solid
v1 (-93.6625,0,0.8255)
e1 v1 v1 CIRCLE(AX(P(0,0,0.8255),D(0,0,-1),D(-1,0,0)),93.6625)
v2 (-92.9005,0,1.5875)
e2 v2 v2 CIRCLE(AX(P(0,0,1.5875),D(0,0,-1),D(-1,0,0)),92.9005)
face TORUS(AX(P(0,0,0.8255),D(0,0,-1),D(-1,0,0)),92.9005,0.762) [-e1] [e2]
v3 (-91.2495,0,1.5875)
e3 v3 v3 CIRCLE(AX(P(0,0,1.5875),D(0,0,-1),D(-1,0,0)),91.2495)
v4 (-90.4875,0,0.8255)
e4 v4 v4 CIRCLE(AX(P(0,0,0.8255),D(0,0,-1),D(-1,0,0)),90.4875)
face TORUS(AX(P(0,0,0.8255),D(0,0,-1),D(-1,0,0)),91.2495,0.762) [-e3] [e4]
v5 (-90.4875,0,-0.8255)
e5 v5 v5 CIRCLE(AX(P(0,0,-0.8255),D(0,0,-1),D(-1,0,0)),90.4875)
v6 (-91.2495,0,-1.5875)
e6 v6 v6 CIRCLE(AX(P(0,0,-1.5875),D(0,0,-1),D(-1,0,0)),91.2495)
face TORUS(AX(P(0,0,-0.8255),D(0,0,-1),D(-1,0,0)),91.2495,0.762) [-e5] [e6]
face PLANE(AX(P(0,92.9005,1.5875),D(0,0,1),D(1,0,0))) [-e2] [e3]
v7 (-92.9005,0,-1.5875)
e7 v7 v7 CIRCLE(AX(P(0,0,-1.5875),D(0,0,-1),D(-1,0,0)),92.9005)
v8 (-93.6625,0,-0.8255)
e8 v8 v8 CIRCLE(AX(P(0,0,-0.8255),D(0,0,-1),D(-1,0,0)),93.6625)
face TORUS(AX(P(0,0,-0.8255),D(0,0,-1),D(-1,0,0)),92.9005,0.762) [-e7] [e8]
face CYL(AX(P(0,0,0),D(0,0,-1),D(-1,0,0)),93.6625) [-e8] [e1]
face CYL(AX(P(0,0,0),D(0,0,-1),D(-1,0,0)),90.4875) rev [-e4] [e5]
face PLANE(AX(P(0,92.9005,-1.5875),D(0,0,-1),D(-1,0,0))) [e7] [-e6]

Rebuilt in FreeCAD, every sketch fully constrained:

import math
import FreeCAD as App
import Part
import Sketcher

V = App.Vector
Q = App.Units.Quantity

doc = App.newDocument("Part")
body = doc.addObject("PartDesign::Body", "Body")

# Sketch on YZ plane
sketch1 = body.newObject("Sketcher::SketchObject", "Sketch")
sketch1.AttachmentSupport = (doc.getObject("YZ_Plane"), [""])
sketch1.MapMode = "FlatFace"
sketch1.addGeometry(Part.LineSegment(V(93.7, -0.8, 0), V(93.7, 0.8, 0)), False)
sketch1.addGeometry(Part.ArcOfCircle(Part.Circle(V(92.9, 0.8, 0), V(0, 0, 1), 0.8), math.radians(0), math.radians(90)), False)
sketch1.addGeometry(Part.LineSegment(V(92.9, 1.6, 0), V(91.2, 1.6, 0)), False)
sketch1.addGeometry(Part.ArcOfCircle(Part.Circle(V(91.2, 0.8, 0), V(0, 0, 1), 0.8), math.radians(90), math.radians(180)), False)
sketch1.addGeometry(Part.LineSegment(V(90.5, 0.8, 0), V(90.5, -0.8, 0)), False)
sketch1.addGeometry(Part.ArcOfCircle(Part.Circle(V(91.2, -0.8, 0), V(0, 0, 1), 0.8), math.radians(-180), math.radians(-90)), False)
sketch1.addGeometry(Part.LineSegment(V(91.2, -1.6, 0), V(92.9, -1.6, 0)), False)
sketch1.addGeometry(Part.ArcOfCircle(Part.Circle(V(92.9, -0.8, 0), V(0, 0, 1), 0.8), math.radians(-90), math.radians(0)), False)
sketch1.addConstraint(Sketcher.Constraint("Tangent", 0, 2, 1, 1))
sketch1.addConstraint(Sketcher.Constraint("Tangent", 1, 2, 2, 1))
sketch1.addConstraint(Sketcher.Constraint("Tangent", 2, 2, 3, 1))
sketch1.addConstraint(Sketcher.Constraint("Tangent", 3, 2, 4, 1))
sketch1.addConstraint(Sketcher.Constraint("Tangent", 4, 2, 5, 1))
sketch1.addConstraint(Sketcher.Constraint("Tangent", 5, 2, 6, 1))
sketch1.addConstraint(Sketcher.Constraint("Tangent", 6, 2, 7, 1))
sketch1.addConstraint(Sketcher.Constraint("Tangent", 7, 2, 0, 1))
sketch1.addConstraint(Sketcher.Constraint("Vertical", 0))
sketch1.addConstraint(Sketcher.Constraint("Horizontal", 2))
sketch1.addConstraint(Sketcher.Constraint("Vertical", 4))
sketch1.addConstraint(Sketcher.Constraint("Horizontal", 6))
sketch1.addConstraint(Sketcher.Constraint("Equal", 1, 3))
sketch1.addConstraint(Sketcher.Constraint("Equal", 3, 5))
sketch1.addConstraint(Sketcher.Constraint("Equal", 5, 7))
sketch1.addConstraint(Sketcher.Constraint("Equal", 6, 0))
sketch1.addConstraint(Sketcher.Constraint("Radius", 1, Q("0.03 in")))
sketch1.addConstraint(Sketcher.Constraint("DistanceX", 2, 2, 2, 1, Q("0.065 in")))
sketch1.addConstraint(Sketcher.Constraint("DistanceX", -1, 1, 0, 2, Q("3.6875 in")))
sketch1.addConstraint(Sketcher.Constraint("DistanceY", -1, 1, 1, 2, Q("0.0625 in")))
revolution = body.newObject("PartDesign::Revolution", "Revolution")
revolution.Profile = sketch1
revolution.ReferenceAxis = (sketch1, ["V_Axis"])
revolution.Angle = 360

doc.recompute()
